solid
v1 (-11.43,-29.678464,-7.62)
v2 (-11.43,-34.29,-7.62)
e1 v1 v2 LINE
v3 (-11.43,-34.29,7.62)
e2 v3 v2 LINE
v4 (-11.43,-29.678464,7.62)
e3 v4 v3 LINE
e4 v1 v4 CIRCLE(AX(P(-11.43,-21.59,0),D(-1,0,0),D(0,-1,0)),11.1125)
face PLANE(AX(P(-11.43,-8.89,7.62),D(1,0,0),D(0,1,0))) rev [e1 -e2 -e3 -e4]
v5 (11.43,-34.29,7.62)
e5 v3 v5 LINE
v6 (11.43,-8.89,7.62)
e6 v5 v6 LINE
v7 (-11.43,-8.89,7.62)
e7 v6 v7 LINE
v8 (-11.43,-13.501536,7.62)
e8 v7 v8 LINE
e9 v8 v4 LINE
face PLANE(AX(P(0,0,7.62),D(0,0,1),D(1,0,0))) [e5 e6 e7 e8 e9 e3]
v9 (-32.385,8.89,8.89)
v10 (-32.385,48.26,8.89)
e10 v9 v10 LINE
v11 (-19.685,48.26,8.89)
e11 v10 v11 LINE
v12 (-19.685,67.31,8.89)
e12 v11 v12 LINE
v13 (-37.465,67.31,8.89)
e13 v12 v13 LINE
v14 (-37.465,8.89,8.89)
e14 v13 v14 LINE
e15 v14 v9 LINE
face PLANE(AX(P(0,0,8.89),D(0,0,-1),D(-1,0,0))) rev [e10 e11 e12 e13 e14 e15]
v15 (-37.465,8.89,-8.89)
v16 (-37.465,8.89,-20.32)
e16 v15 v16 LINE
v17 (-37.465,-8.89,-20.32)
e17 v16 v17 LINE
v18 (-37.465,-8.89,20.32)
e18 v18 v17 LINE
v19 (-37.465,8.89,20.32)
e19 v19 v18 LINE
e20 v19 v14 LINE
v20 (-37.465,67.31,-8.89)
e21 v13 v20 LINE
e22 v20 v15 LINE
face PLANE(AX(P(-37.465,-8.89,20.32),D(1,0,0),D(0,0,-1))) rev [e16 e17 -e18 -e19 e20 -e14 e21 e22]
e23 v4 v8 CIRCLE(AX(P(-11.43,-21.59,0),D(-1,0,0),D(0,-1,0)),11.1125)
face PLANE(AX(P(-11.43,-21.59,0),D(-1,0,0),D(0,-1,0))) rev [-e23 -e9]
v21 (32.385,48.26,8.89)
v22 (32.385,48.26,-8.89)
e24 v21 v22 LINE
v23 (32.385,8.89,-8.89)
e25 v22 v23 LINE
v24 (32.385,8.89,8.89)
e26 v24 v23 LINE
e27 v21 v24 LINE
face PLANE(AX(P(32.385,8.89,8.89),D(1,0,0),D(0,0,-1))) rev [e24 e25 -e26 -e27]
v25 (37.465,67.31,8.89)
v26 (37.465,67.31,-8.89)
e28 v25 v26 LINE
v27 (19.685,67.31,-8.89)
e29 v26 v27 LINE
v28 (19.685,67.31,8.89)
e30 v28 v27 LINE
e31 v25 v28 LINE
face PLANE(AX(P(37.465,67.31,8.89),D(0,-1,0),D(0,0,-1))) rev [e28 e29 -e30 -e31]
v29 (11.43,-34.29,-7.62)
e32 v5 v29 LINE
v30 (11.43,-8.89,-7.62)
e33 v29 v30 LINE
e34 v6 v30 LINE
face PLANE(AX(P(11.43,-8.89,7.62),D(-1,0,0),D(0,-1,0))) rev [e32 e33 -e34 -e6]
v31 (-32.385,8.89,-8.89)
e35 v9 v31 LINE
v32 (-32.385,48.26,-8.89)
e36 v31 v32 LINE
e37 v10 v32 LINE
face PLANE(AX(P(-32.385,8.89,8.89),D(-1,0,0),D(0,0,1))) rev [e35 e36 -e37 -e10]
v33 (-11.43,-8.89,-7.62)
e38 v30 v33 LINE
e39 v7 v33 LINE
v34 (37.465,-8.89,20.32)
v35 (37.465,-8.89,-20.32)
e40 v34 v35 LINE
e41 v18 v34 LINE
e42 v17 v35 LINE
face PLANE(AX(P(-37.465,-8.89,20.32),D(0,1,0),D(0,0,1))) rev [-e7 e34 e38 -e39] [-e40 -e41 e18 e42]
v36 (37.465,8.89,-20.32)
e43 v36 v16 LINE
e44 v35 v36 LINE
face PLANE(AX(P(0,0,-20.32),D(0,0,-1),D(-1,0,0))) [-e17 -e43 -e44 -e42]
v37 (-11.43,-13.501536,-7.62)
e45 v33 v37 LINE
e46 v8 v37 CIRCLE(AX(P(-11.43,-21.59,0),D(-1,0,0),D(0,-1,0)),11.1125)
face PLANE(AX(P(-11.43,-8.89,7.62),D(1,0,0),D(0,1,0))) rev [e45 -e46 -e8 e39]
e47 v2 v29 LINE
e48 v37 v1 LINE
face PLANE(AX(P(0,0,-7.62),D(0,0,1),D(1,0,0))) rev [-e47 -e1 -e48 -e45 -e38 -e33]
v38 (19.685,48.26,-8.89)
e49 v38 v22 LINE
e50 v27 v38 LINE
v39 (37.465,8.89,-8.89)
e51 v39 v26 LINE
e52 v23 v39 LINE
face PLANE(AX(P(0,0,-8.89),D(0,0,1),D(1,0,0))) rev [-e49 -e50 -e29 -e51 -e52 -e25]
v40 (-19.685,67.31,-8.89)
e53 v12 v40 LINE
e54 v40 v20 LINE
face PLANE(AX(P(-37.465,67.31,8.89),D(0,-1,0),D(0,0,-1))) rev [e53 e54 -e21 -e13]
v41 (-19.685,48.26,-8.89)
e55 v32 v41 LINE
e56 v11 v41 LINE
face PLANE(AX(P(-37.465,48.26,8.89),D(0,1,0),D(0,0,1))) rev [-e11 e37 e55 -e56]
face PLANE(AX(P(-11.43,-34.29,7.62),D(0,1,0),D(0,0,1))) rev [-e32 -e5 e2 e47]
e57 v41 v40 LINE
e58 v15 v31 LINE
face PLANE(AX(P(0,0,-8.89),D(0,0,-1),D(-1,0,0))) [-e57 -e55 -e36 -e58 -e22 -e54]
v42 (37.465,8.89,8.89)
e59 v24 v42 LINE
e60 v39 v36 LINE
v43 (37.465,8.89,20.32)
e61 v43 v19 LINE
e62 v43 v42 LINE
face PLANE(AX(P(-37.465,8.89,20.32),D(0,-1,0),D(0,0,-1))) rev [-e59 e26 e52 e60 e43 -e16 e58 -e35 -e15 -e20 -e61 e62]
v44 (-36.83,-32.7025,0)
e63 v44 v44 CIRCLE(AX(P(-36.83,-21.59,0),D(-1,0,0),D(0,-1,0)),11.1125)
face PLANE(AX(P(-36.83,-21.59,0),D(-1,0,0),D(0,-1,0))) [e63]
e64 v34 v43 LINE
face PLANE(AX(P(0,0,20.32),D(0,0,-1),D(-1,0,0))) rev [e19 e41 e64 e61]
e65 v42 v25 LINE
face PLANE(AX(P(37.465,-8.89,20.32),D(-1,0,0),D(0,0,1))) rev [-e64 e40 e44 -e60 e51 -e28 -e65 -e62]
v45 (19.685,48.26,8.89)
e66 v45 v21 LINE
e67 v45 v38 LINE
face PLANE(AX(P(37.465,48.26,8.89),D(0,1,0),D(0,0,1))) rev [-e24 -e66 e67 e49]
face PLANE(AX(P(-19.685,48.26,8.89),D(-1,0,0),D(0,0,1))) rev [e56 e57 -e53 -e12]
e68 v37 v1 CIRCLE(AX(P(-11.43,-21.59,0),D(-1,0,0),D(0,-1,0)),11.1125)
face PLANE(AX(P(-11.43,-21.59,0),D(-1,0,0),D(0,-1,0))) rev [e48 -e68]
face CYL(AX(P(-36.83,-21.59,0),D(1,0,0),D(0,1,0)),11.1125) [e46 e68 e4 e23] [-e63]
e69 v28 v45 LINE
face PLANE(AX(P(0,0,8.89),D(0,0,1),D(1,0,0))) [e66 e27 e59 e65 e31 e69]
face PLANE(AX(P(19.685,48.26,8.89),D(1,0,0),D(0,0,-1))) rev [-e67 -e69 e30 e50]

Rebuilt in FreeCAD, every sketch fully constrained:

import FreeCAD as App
import Part
import Sketcher
from FreeCAD import Vector
Q = App.Units.Quantity

doc = App.newDocument("Part")
body = doc.addObject("PartDesign::Body", "Body")

sketch1 = doc.addObject("Sketcher::SketchObject", "Sketch")
body.addObject(sketch1)
sketch1.AttachmentSupport = (doc.XY_Plane, [""])
sketch1.MapMode = "FlatFace"
sketch1.addGeometry([
    Part.LineSegment(Vector(-37, 9, 0), Vector(-37, -9, 0)),
    Part.LineSegment(Vector(-37, -9, 0), Vector(37, -9, 0)),
    Part.LineSegment(Vector(37, -9, 0), Vector(37, 9, 0)),
    Part.LineSegment(Vector(37, 9, 0), Vector(-37, 9, 0)),
], False)
sketch1.addConstraint([
    Sketcher.Constraint("Coincident", 0, 2, 1, 1),
    Sketcher.Constraint("Coincident", 1, 2, 2, 1),
    Sketcher.Constraint("Coincident", 2, 2, 3, 1),
    Sketcher.Constraint("Coincident", 3, 2, 0, 1),
    Sketcher.Constraint("Vertical", 0),
    Sketcher.Constraint("Horizontal", 1),
    Sketcher.Constraint("Vertical", 2),
    Sketcher.Constraint("Horizontal", 3),
    Sketcher.Constraint("Symmetric", 0, 2, 2, 2, -1, 1),
    Sketcher.Constraint("DistanceY", 0, 2, 0, 1, Q("0.7 in")),
    Sketcher.Constraint("DistanceX", 1, 1, 1, 2, Q("2.95 in")),
])
pad1 = doc.addObject("PartDesign::Pad", "Pad")
body.addObject(pad1)
pad1.Profile = sketch1
pad1.Length = Q("1.6 in")
pad1.Midplane = True

sketch2 = doc.addObject("Sketcher::SketchObject", "Sketch001")
body.addObject(sketch2)
sketch2.AttachmentSupport = (doc.XY_Plane, [""])
sketch2.MapMode = "FlatFace"
sketch2.addGeometry([
    Part.LineSegment(Vector(-37, 48, 0), Vector(-37, 9, 0)),
    Part.LineSegment(Vector(-37, 9, 0), Vector(-32, 9, 0)),
    Part.LineSegment(Vector(-32, 9, 0), Vector(-32, 48, 0)),
    Part.LineSegment(Vector(-32, 48, 0), Vector(-37, 48, 0)),
    Part.LineSegment(Vector(32, 48, 0), Vector(32, 9, 0)),
    Part.LineSegment(Vector(32, 9, 0), Vector(37, 9, 0)),
    Part.LineSegment(Vector(37, 9, 0), Vector(37, 48, 0)),
    Part.LineSegment(Vector(37, 48, 0), Vector(32, 48, 0)),
], False)
sketch2.addConstraint([
    Sketcher.Constraint("Coincident", 0, 2, 1, 1),
    Sketcher.Constraint("Coincident", 1, 2, 2, 1),
    Sketcher.Constraint("Coincident", 2, 2, 3, 1),
    Sketcher.Constraint("Coincident", 3, 2, 0, 1),
    Sketcher.Constraint("Coincident", 4, 2, 5, 1),
    Sketcher.Constraint("Coincident", 5, 2, 6, 1),
    Sketcher.Constraint("Coincident", 6, 2, 7, 1),
    Sketcher.Constraint("Coincident", 7, 2, 4, 1),
    Sketcher.Constraint("Vertical", 0),
    Sketcher.Constraint("Horizontal", 1),
    Sketcher.Constraint("Vertical", 2),
    Sketcher.Constraint("Horizontal", 3),
    Sketcher.Constraint("Vertical", 4),
    Sketcher.Constraint("Horizontal", 5),
    Sketcher.Constraint("Vertical", 6),
    Sketcher.Constraint("Horizontal", 7),
    Sketcher.Constraint("Symmetric", 1, 2, 4, 2, -2),
    Sketcher.Constraint("Symmetric", 3, 2, 6, 2, -2),
    Sketcher.Constraint("DistanceX", 1, 1, 1, 2, Q("0.2 in")),
    Sketcher.Constraint("DistanceY", 0, 2, 0, 1, Q("1.55 in")),
    Sketcher.Constraint("DistanceY", -1, 1, 2, 2, Q("1.9 in")),
    Sketcher.Constraint("DistanceX", 1, 2, 4, 2, Q("2.55 in")),
])
pad2 = doc.addObject("PartDesign::Pad", "Pad001")
body.addObject(pad2)
pad2.Profile = sketch2
pad2.Length = Q("0.7 in")
pad2.Midplane = True

sketch3 = doc.addObject("Sketcher::SketchObject", "Sketch002")
body.addObject(sketch3)
sketch3.AttachmentSupport = (doc.XY_Plane, [""])
sketch3.MapMode = "FlatFace"
sketch3.addGeometry([
    Part.LineSegment(Vector(20, 67, 0), Vector(20, 48, 0)),
    Part.LineSegment(Vector(20, 48, 0), Vector(37, 48, 0)),
    Part.LineSegment(Vector(37, 48, 0), Vector(37, 67, 0)),
    Part.LineSegment(Vector(37, 67, 0), Vector(20, 67, 0)),
    Part.LineSegment(Vector(-37, 67, 0), Vector(-37, 48, 0)),
    Part.LineSegment(Vector(-37, 48, 0), Vector(-20, 48, 0)),
    Part.LineSegment(Vector(-20, 48, 0), Vector(-20, 67, 0)),
    Part.LineSegment(Vector(-20, 67, 0), Vector(-37, 67, 0)),
], False)
sketch3.addConstraint([
    Sketcher.Constraint("Coincident", 0, 2, 1, 1),
    Sketcher.Constraint("Coincident", 1, 2, 2, 1),
    Sketcher.Constraint("Coincident", 2, 2, 3, 1),
    Sketcher.Constraint("Coincident", 3, 2, 0, 1),
    Sketcher.Constraint("Coincident", 4, 2, 5, 1),
    Sketcher.Constraint("Coincident", 5, 2, 6, 1),
    Sketcher.Constraint("Coincident", 6, 2, 7, 1),
    Sketcher.Constraint("Coincident", 7, 2, 4, 1),
    Sketcher.Constraint("Vertical", 0),
    Sketcher.Constraint("Horizontal", 1),
    Sketcher.Constraint("Vertical", 2),
    Sketcher.Constraint("Horizontal", 3),
    Sketcher.Constraint("Vertical", 4),
    Sketcher.Constraint("Horizontal", 5),
    Sketcher.Constraint("Vertical", 6),
    Sketcher.Constraint("Horizontal", 7),
    Sketcher.Constraint("Symmetric", 1, 2, 4, 2, -2),
    Sketcher.Constraint("Symmetric", 3, 2, 6, 2, -2),
    Sketcher.Constraint("DistanceX", 1, 1, 1, 2, Q("0.7 in")),
    Sketcher.Constraint("DistanceY", 0, 2, 0, 1, Q("0.75 in")),
    Sketcher.Constraint("DistanceY", -1, 1, 0, 2, Q("1.9 in")),
    Sketcher.Constraint("DistanceX", 4, 2, 0, 2, Q("2.25 in")),
])
pad3 = doc.addObject("PartDesign::Pad", "Pad002")
body.addObject(pad3)
pad3.Profile = sketch3
pad3.Length = Q("0.7 in")
pad3.Midplane = True

sketch4 = doc.addObject("Sketcher::SketchObject", "Sketch003")
body.addObject(sketch4)
sketch4.AttachmentSupport = (doc.XY_Plane, [""])
sketch4.MapMode = "FlatFace"
sketch4.addGeometry([
    Part.LineSegment(Vector(-11, -9, 0), Vector(-11, -34, 0)),
    Part.LineSegment(Vector(-11, -34, 0), Vector(11, -34, 0)),
    Part.LineSegment(Vector(11, -34, 0), Vector(11, -9, 0)),
    Part.LineSegment(Vector(11, -9, 0), Vector(-11, -9, 0)),
], False)
sketch4.addConstraint([
    Sketcher.Constraint("Coincident", 0, 2, 1, 1),
    Sketcher.Constraint("Coincident", 1, 2, 2, 1),
    Sketcher.Constraint("Coincident", 2, 2, 3, 1),
    Sketcher.Constraint("Coincident", 3, 2, 0, 1),
    Sketcher.Constraint("Vertical", 0),
    Sketcher.Constraint("Horizontal", 1),
    Sketcher.Constraint("Vertical", 2),
    Sketcher.Constraint("Horizontal", 3),
    Sketcher.Constraint("DistanceY", 0, 2, 0, 1, Q("1 in")),
    Sketcher.Constraint("DistanceX", 1, 1, 1, 2, Q("0.9 in")),
    Sketcher.Constraint("DistanceX", 0, 2, -1, 1, Q("0.45 in")),
    Sketcher.Constraint("DistanceY", 0, 2, -1, 1, Q("1.35 in")),
])
pad4 = doc.addObject("PartDesign::Pad", "Pad003")
body.addObject(pad4)
pad4.Profile = sketch4
pad4.Length = Q("0.6 in")
pad4.Midplane = True

sketch5 = doc.addObject("Sketcher::SketchObject", "Sketch004")
body.addObject(sketch5)
sketch5.AttachmentSupport = (doc.YZ_Plane, [""])
sketch5.MapMode = "FlatFace"
sketch5.AttachmentOffset = App.Placement(Vector(0, 0, -0.45 * 25.4), App.Rotation())
sketch5.addGeometry(Part.Circle(Vector(-22, 0, 0), Vector(0, 0, 1), 11), False)
sketch5.addConstraint([
    Sketcher.Constraint("PointOnObject", 0, 3, -1),
    Sketcher.Constraint("Diameter", 0, Q("0.875 in")),
    Sketcher.Constraint("DistanceX", 0, 3, -1, 1, Q("0.85 in")),
])
pad5 = doc.addObject("PartDesign::Pad", "Pad004")
body.addObject(pad5)
pad5.Profile = sketch5
pad5.Length = Q("1 in")
pad5.Reversed = True

doc.recompute()
